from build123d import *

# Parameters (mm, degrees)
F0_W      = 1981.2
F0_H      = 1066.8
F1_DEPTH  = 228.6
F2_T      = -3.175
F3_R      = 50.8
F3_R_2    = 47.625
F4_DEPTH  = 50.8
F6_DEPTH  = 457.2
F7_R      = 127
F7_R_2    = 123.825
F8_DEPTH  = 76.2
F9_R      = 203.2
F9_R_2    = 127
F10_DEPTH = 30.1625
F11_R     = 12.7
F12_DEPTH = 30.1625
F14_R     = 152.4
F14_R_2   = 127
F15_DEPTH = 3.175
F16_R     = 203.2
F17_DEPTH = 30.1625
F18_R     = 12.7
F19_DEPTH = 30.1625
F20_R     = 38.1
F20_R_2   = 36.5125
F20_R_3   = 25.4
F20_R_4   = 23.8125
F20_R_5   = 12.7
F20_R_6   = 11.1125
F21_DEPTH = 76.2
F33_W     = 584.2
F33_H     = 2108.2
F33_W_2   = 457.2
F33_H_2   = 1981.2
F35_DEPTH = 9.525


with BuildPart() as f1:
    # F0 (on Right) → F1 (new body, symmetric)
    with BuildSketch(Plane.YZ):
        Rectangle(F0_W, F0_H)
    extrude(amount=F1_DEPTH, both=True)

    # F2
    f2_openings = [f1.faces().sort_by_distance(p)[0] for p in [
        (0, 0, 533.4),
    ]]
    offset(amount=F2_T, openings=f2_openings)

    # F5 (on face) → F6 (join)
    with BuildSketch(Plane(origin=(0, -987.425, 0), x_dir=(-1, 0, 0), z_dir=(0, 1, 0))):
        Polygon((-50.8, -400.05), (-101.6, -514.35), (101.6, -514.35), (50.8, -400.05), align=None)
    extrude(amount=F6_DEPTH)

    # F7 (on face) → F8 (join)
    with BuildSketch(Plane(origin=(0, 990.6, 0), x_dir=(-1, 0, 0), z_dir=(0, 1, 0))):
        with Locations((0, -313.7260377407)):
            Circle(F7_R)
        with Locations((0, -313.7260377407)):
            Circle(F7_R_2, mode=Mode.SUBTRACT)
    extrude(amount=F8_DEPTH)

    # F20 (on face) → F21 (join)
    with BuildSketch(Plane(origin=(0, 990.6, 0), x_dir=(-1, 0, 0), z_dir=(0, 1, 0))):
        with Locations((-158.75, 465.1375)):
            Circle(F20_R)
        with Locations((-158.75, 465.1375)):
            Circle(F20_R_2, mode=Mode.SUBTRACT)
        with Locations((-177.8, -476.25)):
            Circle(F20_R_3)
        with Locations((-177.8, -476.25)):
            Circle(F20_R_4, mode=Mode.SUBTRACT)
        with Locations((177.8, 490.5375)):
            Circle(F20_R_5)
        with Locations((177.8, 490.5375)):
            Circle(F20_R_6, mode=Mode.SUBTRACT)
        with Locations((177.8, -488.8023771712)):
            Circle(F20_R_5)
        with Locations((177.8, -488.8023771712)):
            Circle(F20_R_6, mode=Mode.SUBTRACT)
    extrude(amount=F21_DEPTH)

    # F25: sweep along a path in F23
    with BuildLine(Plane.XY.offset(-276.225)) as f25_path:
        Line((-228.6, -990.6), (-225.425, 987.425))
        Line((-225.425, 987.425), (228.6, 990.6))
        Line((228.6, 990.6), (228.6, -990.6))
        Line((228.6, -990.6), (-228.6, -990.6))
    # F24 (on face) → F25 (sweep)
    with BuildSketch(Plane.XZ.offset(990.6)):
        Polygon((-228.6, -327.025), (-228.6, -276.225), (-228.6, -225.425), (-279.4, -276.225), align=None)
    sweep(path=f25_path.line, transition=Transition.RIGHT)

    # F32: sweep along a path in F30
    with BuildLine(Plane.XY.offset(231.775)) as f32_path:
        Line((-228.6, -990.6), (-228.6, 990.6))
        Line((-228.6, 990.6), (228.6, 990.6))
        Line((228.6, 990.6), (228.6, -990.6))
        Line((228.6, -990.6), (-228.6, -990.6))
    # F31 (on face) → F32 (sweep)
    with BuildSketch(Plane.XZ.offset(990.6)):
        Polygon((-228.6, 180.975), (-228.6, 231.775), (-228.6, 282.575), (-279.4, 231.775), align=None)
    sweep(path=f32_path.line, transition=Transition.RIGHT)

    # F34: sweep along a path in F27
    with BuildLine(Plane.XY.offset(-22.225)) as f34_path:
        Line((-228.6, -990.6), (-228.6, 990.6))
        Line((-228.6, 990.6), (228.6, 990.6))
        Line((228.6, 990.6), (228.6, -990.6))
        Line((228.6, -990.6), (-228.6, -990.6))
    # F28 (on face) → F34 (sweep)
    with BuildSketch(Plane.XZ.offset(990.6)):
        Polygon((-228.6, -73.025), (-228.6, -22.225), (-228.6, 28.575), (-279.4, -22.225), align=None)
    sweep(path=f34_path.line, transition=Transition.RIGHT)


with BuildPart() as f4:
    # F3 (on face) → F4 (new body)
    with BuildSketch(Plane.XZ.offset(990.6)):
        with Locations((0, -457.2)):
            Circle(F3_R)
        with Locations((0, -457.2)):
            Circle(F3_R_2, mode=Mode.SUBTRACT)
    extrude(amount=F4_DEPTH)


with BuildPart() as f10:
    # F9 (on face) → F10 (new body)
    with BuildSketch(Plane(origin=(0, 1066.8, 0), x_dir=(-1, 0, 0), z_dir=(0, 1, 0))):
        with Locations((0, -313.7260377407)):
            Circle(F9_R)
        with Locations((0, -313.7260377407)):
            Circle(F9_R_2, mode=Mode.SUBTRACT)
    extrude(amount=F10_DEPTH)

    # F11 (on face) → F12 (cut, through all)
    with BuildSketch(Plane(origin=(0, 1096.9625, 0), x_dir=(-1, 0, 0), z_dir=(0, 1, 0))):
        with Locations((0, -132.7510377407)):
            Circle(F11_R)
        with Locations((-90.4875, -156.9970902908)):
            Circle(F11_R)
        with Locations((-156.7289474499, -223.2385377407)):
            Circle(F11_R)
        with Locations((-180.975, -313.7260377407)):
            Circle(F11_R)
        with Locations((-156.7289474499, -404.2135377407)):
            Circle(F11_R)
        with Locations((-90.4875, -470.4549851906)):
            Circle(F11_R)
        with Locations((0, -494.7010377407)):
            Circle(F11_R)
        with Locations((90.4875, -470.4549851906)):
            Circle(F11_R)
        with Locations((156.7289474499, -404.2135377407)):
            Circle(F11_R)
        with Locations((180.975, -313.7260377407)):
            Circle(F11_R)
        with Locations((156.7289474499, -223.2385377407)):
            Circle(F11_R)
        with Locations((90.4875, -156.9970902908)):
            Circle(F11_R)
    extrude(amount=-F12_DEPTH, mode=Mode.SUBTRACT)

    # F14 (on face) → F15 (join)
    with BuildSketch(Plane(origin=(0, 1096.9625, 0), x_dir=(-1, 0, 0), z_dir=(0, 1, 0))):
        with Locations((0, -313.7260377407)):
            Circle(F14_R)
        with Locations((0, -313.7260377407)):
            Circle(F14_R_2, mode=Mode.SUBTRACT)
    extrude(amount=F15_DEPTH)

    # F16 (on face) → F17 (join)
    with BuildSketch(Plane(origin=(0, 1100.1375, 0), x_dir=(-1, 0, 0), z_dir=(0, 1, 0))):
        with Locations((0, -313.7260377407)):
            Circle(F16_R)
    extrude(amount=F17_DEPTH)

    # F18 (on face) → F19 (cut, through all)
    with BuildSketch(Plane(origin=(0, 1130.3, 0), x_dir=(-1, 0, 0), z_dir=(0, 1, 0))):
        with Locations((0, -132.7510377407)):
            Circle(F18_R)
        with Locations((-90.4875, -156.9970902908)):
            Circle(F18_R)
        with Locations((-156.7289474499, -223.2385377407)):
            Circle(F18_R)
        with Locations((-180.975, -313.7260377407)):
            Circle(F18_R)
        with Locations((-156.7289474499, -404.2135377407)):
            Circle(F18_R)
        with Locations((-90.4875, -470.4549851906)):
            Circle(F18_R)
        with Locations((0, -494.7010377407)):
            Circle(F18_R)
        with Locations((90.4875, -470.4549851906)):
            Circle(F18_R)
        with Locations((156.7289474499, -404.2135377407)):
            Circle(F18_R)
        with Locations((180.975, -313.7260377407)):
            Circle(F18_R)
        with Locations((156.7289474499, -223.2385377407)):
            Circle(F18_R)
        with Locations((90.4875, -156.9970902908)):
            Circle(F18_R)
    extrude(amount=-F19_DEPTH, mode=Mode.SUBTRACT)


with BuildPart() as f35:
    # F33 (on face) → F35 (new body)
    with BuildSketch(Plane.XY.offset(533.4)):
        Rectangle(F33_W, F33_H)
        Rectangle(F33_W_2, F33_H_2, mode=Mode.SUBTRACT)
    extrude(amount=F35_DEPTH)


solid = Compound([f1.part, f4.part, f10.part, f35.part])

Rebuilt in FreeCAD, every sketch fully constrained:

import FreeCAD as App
import Part
import Sketcher

V = App.Vector
Q = App.Units.Quantity


def faces_at(feature, points):
    """Names of the faces that lie closest to the given points."""
    faces = feature.Shape.Faces
    near = lambda p: min(range(len(faces)), key=lambda i: faces[i].distToShape(Part.Vertex(*p))[0])
    return sorted({f"Face{near(p) + 1}" for p in points})


def add_polygon(sketch, points):
    """Adds a closed chain of lines whose ends are joined by coincident constraints."""
    first, n = sketch.GeometryCount, len(points)
    for a, b in zip(points, points[1:] + points[:1]):
        sketch.addGeometry(Part.LineSegment(App.Vector(*a, 0), App.Vector(*b, 0)), False)
    for i in range(n):
        sketch.addConstraint(Sketcher.Constraint("Coincident", first + i, 2, first + (i + 1) % n, 1))

doc = App.newDocument("Part")
body = doc.addObject("PartDesign::Body", "Body")

# Sketch on YZ plane
sketch1 = body.newObject("Sketcher::SketchObject", "Sketch")
sketch1.AttachmentSupport = (doc.getObject("YZ_Plane"), [""])
sketch1.MapMode = "FlatFace"
add_polygon(sketch1, [(-990.6, 533.4), (-990.6, -533.4), (990.6, -533.4), (990.6, 533.4)])  # lines 0-3
sketch1.addConstraint(Sketcher.Constraint("Vertical", 0))
sketch1.addConstraint(Sketcher.Constraint("Horizontal", 1))
sketch1.addConstraint(Sketcher.Constraint("Vertical", 2))
sketch1.addConstraint(Sketcher.Constraint("Horizontal", 3))
sketch1.addConstraint(Sketcher.Constraint("Symmetric", 0, 2, 2, 2, -1, 1))
sketch1.addConstraint(Sketcher.Constraint("DistanceX", 1, 1, 1, 2, Q("78 in")))
sketch1.addConstraint(Sketcher.Constraint("DistanceY", 0, 2, 0, 1, Q("42 in")))
pad1 = body.newObject("PartDesign::Pad", "Pad")
pad1.Profile = sketch1
pad1.Length = Q("18 in")
pad1.Midplane = True
doc.recompute()

thickness = body.newObject("PartDesign::Thickness", "Thickness")
thickness.Base = (pad1, faces_at(pad1, [(0, 0, 533.4)]))
thickness.Value = Q("0.125 in")
thickness.Reversed = True
thickness.Join = "Arc"

# Sketch on XZ plane
sketch2 = body.newObject("Sketcher::SketchObject", "Sketch001")
sketch2.AttachmentSupport = (doc.getObject("XZ_Plane"), [""])
sketch2.MapMode = "FlatFace"
sketch2.AttachmentOffset = App.Placement(V(0, 0, 38.875 * 25.4), App.Rotation())
add_polygon(sketch2, [(50.8, -400.05), (101.6, -514.35), (-101.6, -514.35), (-50.8, -400.05)])  # lines 0-3
sketch2.addConstraint(Sketcher.Constraint("Horizontal", 1))
sketch2.addConstraint(Sketcher.Constraint("Horizontal", 3))
sketch2.addConstraint(Sketcher.Constraint("Equal", 0, 2))
sketch2.addConstraint(Sketcher.Constraint("DistanceX", 1, 2, 1, 1, Q("8 in")))
sketch2.addConstraint(Sketcher.Constraint("DistanceX", 3, 1, 3, 2, Q("4 in")))
sketch2.addConstraint(Sketcher.Constraint("DistanceX", -1, 1, 0, 2, Q("4 in")))
sketch2.addConstraint(Sketcher.Constraint("DistanceY", 1, 2, 2, 2, Q("4.5 in")))
sketch2.addConstraint(Sketcher.Constraint("DistanceY", 0, 2, -1, 1, Q("20.25 in")))
pad2 = body.newObject("PartDesign::Pad", "Pad001")
pad2.Profile = sketch2
pad2.Length = Q("18 in")
pad2.Reversed = True

# Sketch on XZ plane
sketch3 = body.newObject("Sketcher::SketchObject", "Sketch002")
sketch3.AttachmentSupport = (doc.getObject("XZ_Plane"), [""])
sketch3.MapMode = "FlatFace"
sketch3.AttachmentOffset = App.Placement(V(0, 0, -39 * 25.4), App.Rotation())
sketch3.addGeometry(Part.Circle(V(0, -313.726038, 0), V(0, 0, 1), 127), False)
sketch3.addGeometry(Part.Circle(V(0, -313.726038, 0), V(0, 0, 1), 123.825), False)
sketch3.addConstraint(Sketcher.Constraint("Coincident", 1, 3, 0, 3))
sketch3.addConstraint(Sketcher.Constraint("PointOnObject", 0, 3, -2))
sketch3.addConstraint(Sketcher.Constraint("Diameter", 0, Q("10 in")))
sketch3.addConstraint(Sketcher.Constraint("Diameter", 1, Q("9.75 in")))
sketch3.addConstraint(Sketcher.Constraint("DistanceY", 0, 3, -1, 1, Q("313.726038 mm")))
pad3 = body.newObject("PartDesign::Pad", "Pad002")
pad3.Profile = sketch3
pad3.Length = Q("3 in")
pad3.Reversed = True

# Sketch on XZ plane
sketch4 = body.newObject("Sketcher::SketchObject", "Sketch003")
sketch4.AttachmentSupport = (doc.getObject("XZ_Plane"), [""])
sketch4.MapMode = "FlatFace"
sketch4.AttachmentOffset = App.Placement(V(0, 0, -39 * 25.4), App.Rotation())
sketch4.addGeometry(Part.Circle(V(158.75, 465.1375, 0), V(0, 0, 1), 38.1), False)
sketch4.addGeometry(Part.Circle(V(158.75, 465.1375, 0), V(0, 0, 1), 36.5125), False)
sketch4.addGeometry(Part.Circle(V(177.8, -476.25, 0), V(0, 0, 1), 25.4), False)
sketch4.addGeometry(Part.Circle(V(177.8, -476.25, 0), V(0, 0, 1), 23.8125), False)
sketch4.addGeometry(Part.Circle(V(-177.8, 490.5375, 0), V(0, 0, 1), 12.7), False)
sketch4.addGeometry(Part.Circle(V(-177.8, 490.5375, 0), V(0, 0, 1), 11.1125), False)
sketch4.addGeometry(Part.Circle(V(-177.8, -488.802377, 0), V(0, 0, 1), 12.7), False)
sketch4.addGeometry(Part.Circle(V(-177.8, -488.802377, 0), V(0, 0, 1), 11.1125), False)
sketch4.addConstraint(Sketcher.Constraint("Coincident", 1, 3, 0, 3))
sketch4.addConstraint(Sketcher.Constraint("Coincident", 3, 3, 2, 3))
sketch4.addConstraint(Sketcher.Constraint("Coincident", 5, 3, 4, 3))
sketch4.addConstraint(Sketcher.Constraint("Coincident", 7, 3, 6, 3))
sketch4.addConstraint(Sketcher.Constraint("Equal", 4, 6))
sketch4.addConstraint(Sketcher.Constraint("Equal", 5, 7))
sketch4.addConstraint(Sketcher.Constraint("Vertical", 5, 3, 6, 3))
sketch4.addConstraint(Sketcher.Constraint("Diameter", 0, Q("3 in")))
sketch4.addConstraint(Sketcher.Constraint("Diameter", 2, Q("2 in")))
sketch4.addConstraint(Sketcher.Constraint("Diameter", 4, Q("1 in")))
sketch4.addConstraint(Sketcher.Constraint("Diameter", 1, Q("2.875 in")))
sketch4.addConstraint(Sketcher.Constraint("Diameter", 3, Q("1.875 in")))
sketch4.addConstraint(Sketcher.Constraint("Diameter", 5, Q("0.875 in")))
sketch4.addConstraint(Sketcher.Constraint("DistanceX", -1, 1, 2, 3, Q("7 in")))
sketch4.addConstraint(Sketcher.Constraint("DistanceX", 4, 3, -1, 1, Q("7 in")))
sketch4.addConstraint(Sketcher.Constraint("DistanceY", 0, 3, 4, 3, Q("1 in")))
sketch4.addConstraint(Sketcher.Constraint("DistanceX", -1, 1, 0, 3, Q("6.25 in")))
sketch4.addConstraint(Sketcher.Constraint("DistanceY", 2, 3, -1, 1, Q("18.75 in")))
sketch4.addConstraint(Sketcher.Constraint("DistanceY", -1, 1, 0, 3, Q("18.3125 in")))
sketch4.addConstraint(Sketcher.Constraint("DistanceY", 6, 3, -1, 1, Q("488.802377 mm")))
pad4 = body.newObject("PartDesign::Pad", "Pad003")
pad4.Profile = sketch4
pad4.Length = Q("3 in")
pad4.Reversed = True

# Sketch on XZ plane
sketch5 = body.newObject("Sketcher::SketchObject", "Sketch004")
sketch5.AttachmentSupport = (doc.getObject("XZ_Plane"), [""])
sketch5.MapMode = "FlatFace"
sketch5.AttachmentOffset = App.Placement(V(0, 0, 39 * 25.4), App.Rotation())
add_polygon(sketch5, [(-228.6, -327.025), (-228.6, -225.425), (-279.4, -276.225)])  # lines 0-2
sketch5.addConstraint(Sketcher.Constraint("Vertical", 0))
sketch5.addConstraint(Sketcher.Constraint("Perpendicular", 1, 2))
sketch5.addConstraint(Sketcher.Constraint("Equal", 1, 2))
sketch5.addConstraint(Sketcher.Constraint("DistanceY", 0, 1, 0, 2, Q("4 in")))
sketch5.addConstraint(Sketcher.Constraint("DistanceX", 0, 2, -1, 1, Q("9 in")))
sketch5.addConstraint(Sketcher.Constraint("DistanceY", 0, 2, -1, 1, Q("8.875 in")))

# Sketch on XY plane
sketch6 = body.newObject("Sketcher::SketchObject", "Sketch005")
sketch6.AttachmentSupport = (doc.getObject("XY_Plane"), [""])
sketch6.MapMode = "FlatFace"
sketch6.AttachmentOffset = App.Placement(V(0, 0, -10.875 * 25.4), App.Rotation())
add_polygon(sketch6, [(-228.6, -990.6), (-225.425, 987.425), (228.6, 990.6), (228.6, -990.6)])  # lines 0-3
sketch6.addConstraint(Sketcher.Constraint("Vertical", 2))
sketch6.addConstraint(Sketcher.Constraint("Horizontal", 3))
sketch6.addConstraint(Sketcher.Constraint("Symmetric", 1, 2, 3, 2, -1, 1))
sketch6.addConstraint(Sketcher.Constraint("DistanceX", 3, 2, 3, 1, Q("18 in")))
sketch6.addConstraint(Sketcher.Constraint("DistanceY", 2, 2, 2, 1, Q("78 in")))
sketch6.addConstraint(Sketcher.Constraint("DistanceX", 0, 2, -1, 1, Q("8.875 in")))
sketch6.addConstraint(Sketcher.Constraint("DistanceY", -1, 1, 0, 2, Q("38.875 in")))
doc.recompute()

additivepipe = body.newObject("PartDesign::AdditivePipe", "AdditivePipe")
additivepipe.Profile = sketch5
additivepipe.Spine = (sketch6, ["Edge1", "Edge2", "Edge3", "Edge4"])
additivepipe.Transition = "Right corner"

# Sketch on XZ plane
sketch7 = body.newObject("Sketcher::SketchObject", "Sketch006")
sketch7.AttachmentSupport = (doc.getObject("XZ_Plane"), [""])
sketch7.MapMode = "FlatFace"
sketch7.AttachmentOffset = App.Placement(V(0, 0, 39 * 25.4), App.Rotation())
add_polygon(sketch7, [(-228.6, 180.975), (-228.6, 282.575), (-279.4, 231.775)])  # lines 0-2
sketch7.addConstraint(Sketcher.Constraint("Vertical", 0))
sketch7.addConstraint(Sketcher.Constraint("Perpendicular", 1, 2))
sketch7.addConstraint(Sketcher.Constraint("Equal", 1, 2))
sketch7.addConstraint(Sketcher.Constraint("DistanceY", 0, 1, 0, 2, Q("4 in")))
sketch7.addConstraint(Sketcher.Constraint("DistanceX", 0, 2, -1, 1, Q("9 in")))
sketch7.addConstraint(Sketcher.Constraint("DistanceY", -1, 1, 0, 2, Q("11.125 in")))

# Sketch on XY plane
sketch8 = body.newObject("Sketcher::SketchObject", "Sketch007")
sketch8.AttachmentSupport = (doc.getObject("XY_Plane"), [""])
sketch8.MapMode = "FlatFace"
sketch8.AttachmentOffset = App.Placement(V(0, 0, 9.125 * 25.4), App.Rotation())
add_polygon(sketch8, [(-228.6, -990.6), (-228.6, 990.6), (228.6, 990.6), (228.6, -990.6)])  # lines 0-3
sketch8.addConstraint(Sketcher.Constraint("Vertical", 0))
sketch8.addConstraint(Sketcher.Constraint("Horizontal", 1))
sketch8.addConstraint(Sketcher.Constraint("Vertical", 2))
sketch8.addConstraint(Sketcher.Constraint("Horizontal", 3))
sketch8.addConstraint(Sketcher.Constraint("Symmetric", 0, 2, 2, 2, -1, 1))
sketch8.addConstraint(Sketcher.Constraint("DistanceX", 1, 1, 1, 2, Q("18 in")))
sketch8.addConstraint(Sketcher.Constraint("DistanceY", 0, 1, 0, 2, Q("78 in")))
doc.recompute()

additivepipe2 = body.newObject("PartDesign::AdditivePipe", "AdditivePipe001")
additivepipe2.Profile = sketch7
additivepipe2.Spine = (sketch8, ["Edge1", "Edge2", "Edge3", "Edge4"])
additivepipe2.Transition = "Right corner"

# Sketch on XZ plane
sketch9 = body.newObject("Sketcher::SketchObject", "Sketch008")
sketch9.AttachmentSupport = (doc.getObject("XZ_Plane"), [""])
sketch9.MapMode = "FlatFace"
sketch9.AttachmentOffset = App.Placement(V(0, 0, 39 * 25.4), App.Rotation())
add_polygon(sketch9, [(-228.6, -73.025), (-228.6, 28.575), (-279.4, -22.225)])  # lines 0-2
sketch9.addConstraint(Sketcher.Constraint("Vertical", 0))
sketch9.addConstraint(Sketcher.Constraint("Perpendicular", 1, 2))
sketch9.addConstraint(Sketcher.Constraint("Equal", 1, 2))
sketch9.addConstraint(Sketcher.Constraint("DistanceY", 0, 1, 0, 2, Q("4 in")))
sketch9.addConstraint(Sketcher.Constraint("DistanceX", 0, 2, -1, 1, Q("9 in")))
sketch9.addConstraint(Sketcher.Constraint("DistanceY", -1, 1, 0, 2, Q("1.125 in")))

# Sketch on XY plane
sketch10 = body.newObject("Sketcher::SketchObject", "Sketch009")
sketch10.AttachmentSupport = (doc.getObject("XY_Plane"), [""])
sketch10.MapMode = "FlatFace"
sketch10.AttachmentOffset = App.Placement(V(0, 0, -0.875 * 25.4), App.Rotation())
add_polygon(sketch10, [(-228.6, -990.6), (-228.6, 990.6), (228.6, 990.6), (228.6, -990.6)])  # lines 0-3
sketch10.addConstraint(Sketcher.Constraint("Vertical", 0))
sketch10.addConstraint(Sketcher.Constraint("Horizontal", 1))
sketch10.addConstraint(Sketcher.Constraint("Vertical", 2))
sketch10.addConstraint(Sketcher.Constraint("Horizontal", 3))
sketch10.addConstraint(Sketcher.Constraint("Symmetric", 0, 2, 2, 2, -1, 1))
sketch10.addConstraint(Sketcher.Constraint("DistanceX", 1, 1, 1, 2, Q("18 in")))
sketch10.addConstraint(Sketcher.Constraint("DistanceY", 0, 1, 0, 2, Q("78 in")))
doc.recompute()

additivepipe3 = body.newObject("PartDesign::AdditivePipe", "AdditivePipe002")
additivepipe3.Profile = sketch9
additivepipe3.Spine = (sketch10, ["Edge1", "Edge2", "Edge3", "Edge4"])
additivepipe3.Transition = "Right corner"
body2 = doc.addObject("PartDesign::Body", "Body001")

# Sketch on XZ plane
sketch11 = body2.newObject("Sketcher::SketchObject", "Sketch010")
sketch11.AttachmentSupport = (doc.getObject("XZ_Plane001"), [""])
sketch11.MapMode = "FlatFace"
sketch11.AttachmentOffset = App.Placement(V(0, 0, 39 * 25.4), App.Rotation())
sketch11.addGeometry(Part.Circle(V(0, -457.2, 0), V(0, 0, 1), 50.8), False)
sketch11.addGeometry(Part.Circle(V(0, -457.2, 0), V(0, 0, 1), 47.625), False)
sketch11.addConstraint(Sketcher.Constraint("Coincident", 1, 3, 0, 3))
sketch11.addConstraint(Sketcher.Constraint("PointOnObject", 0, 3, -2))
sketch11.addConstraint(Sketcher.Constraint("Diameter", 0, Q("4 in")))
sketch11.addConstraint(Sketcher.Constraint("Diameter", 1, Q("3.75 in")))
sketch11.addConstraint(Sketcher.Constraint("DistanceY", 0, 3, -1, 1, Q("18 in")))
pad5 = body2.newObject("PartDesign::Pad", "Pad004")
pad5.Profile = sketch11
pad5.Length = Q("2 in")
body3 = doc.addObject("PartDesign::Body", "Body002")

# Sketch on XZ plane
sketch12 = body3.newObject("Sketcher::SketchObject", "Sketch011")
sketch12.AttachmentSupport = (doc.getObject("XZ_Plane002"), [""])
sketch12.MapMode = "FlatFace"
sketch12.AttachmentOffset = App.Placement(V(0, 0, -42 * 25.4), App.Rotation())
sketch12.addGeometry(Part.Circle(V(0, -313.726038, 0), V(0, 0, 1), 203.2), False)
sketch12.addGeometry(Part.Circle(V(0, -313.726038, 0), V(0, 0, 1), 127), False)
sketch12.addConstraint(Sketcher.Constraint("Coincident", 1, 3, 0, 3))
sketch12.addConstraint(Sketcher.Constraint("PointOnObject", 0, 3, -2))
sketch12.addConstraint(Sketcher.Constraint("Diameter", 0, Q("16 in")))
sketch12.addConstraint(Sketcher.Constraint("Diameter", 1, Q("10 in")))
sketch12.addConstraint(Sketcher.Constraint("DistanceY", 0, 3, -1, 1, Q("313.726038 mm")))
pad6 = body3.newObject("PartDesign::Pad", "Pad005")
pad6.Profile = sketch12
pad6.Length = Q("1.1875 in")
pad6.Reversed = True

# Sketch on XZ plane
sketch13 = body3.newObject("Sketcher::SketchObject", "Sketch012")
sketch13.AttachmentSupport = (doc.getObject("XZ_Plane002"), [""])
sketch13.MapMode = "FlatFace"
sketch13.AttachmentOffset = App.Placement(V(0, 0, -43.1875 * 25.4), App.Rotation())
sketch13.addGeometry(Part.Circle(V(0, -132.751038, 0), V(0, 0, 1), 12.7), False)
sketch13.addGeometry(Part.Circle(V(90.4875, -156.99709, 0), V(0, 0, 1), 12.7), False)
sketch13.addGeometry(Part.Circle(V(156.728947, -223.238538, 0), V(0, 0, 1), 12.7), False)
sketch13.addGeometry(Part.Circle(V(180.975, -313.726038, 0), V(0, 0, 1), 12.7), False)
sketch13.addGeometry(Part.Circle(V(156.728947, -404.213538, 0), V(0, 0, 1), 12.7), False)
sketch13.addGeometry(Part.Circle(V(90.4875, -470.454985, 0), V(0, 0, 1), 12.7), False)
sketch13.addGeometry(Part.Circle(V(0, -494.701038, 0), V(0, 0, 1), 12.7), False)
sketch13.addGeometry(Part.Circle(V(-90.4875, -470.454985, 0), V(0, 0, 1), 12.7), False)
sketch13.addGeometry(Part.Circle(V(-156.728947, -404.213538, 0), V(0, 0, 1), 12.7), False)
sketch13.addGeometry(Part.Circle(V(-180.975, -313.726038, 0), V(0, 0, 1), 12.7), False)
sketch13.addGeometry(Part.Circle(V(-156.728947, -223.238538, 0), V(0, 0, 1), 12.7), False)
sketch13.addGeometry(Part.Circle(V(-90.4875, -156.99709, 0), V(0, 0, 1), 12.7), False)
sketch13.addConstraint(Sketcher.Constraint("Equal", 0, 1))
sketch13.addConstraint(Sketcher.Constraint("Equal", 1, 2))
sketch13.addConstraint(Sketcher.Constraint("Equal", 2, 3))
sketch13.addConstraint(Sketcher.Constraint("Equal", 3, 4))
sketch13.addConstraint(Sketcher.Constraint("Equal", 4, 5))
sketch13.addConstraint(Sketcher.Constraint("Equal", 5, 6))
sketch13.addConstraint(Sketcher.Constraint("Equal", 6, 7))
sketch13.addConstraint(Sketcher.Constraint("Equal", 7, 8))
sketch13.addConstraint(Sketcher.Constraint("Equal", 8, 9))
sketch13.addConstraint(Sketcher.Constraint("Equal", 9, 10))
sketch13.addConstraint(Sketcher.Constraint("Equal", 10, 11))
sketch13.addConstraint(Sketcher.Constraint("Symmetric", 5, 3, 7, 3, -2))
sketch13.addConstraint(Sketcher.Constraint("Symmetric", 4, 3, 8, 3, -2))
sketch13.addConstraint(Sketcher.Constraint("Symmetric", 3, 3, 9, 3, -2))
sketch13.addConstraint(Sketcher.Constraint("Symmetric", 2, 3, 10, 3, -2))
sketch13.addConstraint(Sketcher.Constraint("Symmetric", 1, 3, 11, 3, -2))
sketch13.addConstraint(Sketcher.Constraint("PointOnObject", 0, 3, -2))
sketch13.addConstraint(Sketcher.Constraint("PointOnObject", 6, 3, -2))
sketch13.addConstraint(Sketcher.Constraint("Vertical", 2, 3, 4, 3))
sketch13.addConstraint(Sketcher.Constraint("Vertical", 1, 3, 5, 3))
sketch13.addConstraint(Sketcher.Constraint("Diameter", 0, Q("1 in")))
sketch13.addConstraint(Sketcher.Constraint("DistanceX", -1, 1, 1, 3, Q("3.5625 in")))
sketch13.addConstraint(Sketcher.Constraint("DistanceX", -1, 1, 3, 3, Q("7.125 in")))
sketch13.addConstraint(Sketcher.Constraint("DistanceY", 2, 3, 0, 3, Q("3.5625 in")))
sketch13.addConstraint(Sketcher.Constraint("DistanceY", 3, 3, 2, 3, Q("3.5625 in")))
sketch13.addConstraint(Sketcher.Constraint("DistanceY", 4, 3, 3, 3, Q("3.5625 in")))
sketch13.addConstraint(Sketcher.Constraint("DistanceY", 6, 3, 4, 3, Q("3.5625 in")))
sketch13.addConstraint(Sketcher.Constraint("DistanceY", 1, 3, -1, 1, Q("156.99709 mm")))
sketch13.addConstraint(Sketcher.Constraint("DistanceY", 0, 3, -1, 1, Q("132.751038 mm")))
sketch13.addConstraint(Sketcher.Constraint("DistanceX", -1, 1, 2, 3, Q("156.728947 mm")))
sketch13.addConstraint(Sketcher.Constraint("DistanceY", 5, 3, -1, 1, Q("470.454985 mm")))
pocket1 = body3.newObject("PartDesign::Pocket", "Pocket")
pocket1.Profile = sketch13
pocket1.Type = "ThroughAll"
pocket1.Reversed = True

# Sketch on XZ plane
sketch14 = body3.newObject("Sketcher::SketchObject", "Sketch013")
sketch14.AttachmentSupport = (doc.getObject("XZ_Plane002"), [""])
sketch14.MapMode = "FlatFace"
sketch14.AttachmentOffset = App.Placement(V(0, 0, -43.1875 * 25.4), App.Rotation())
sketch14.addGeometry(Part.Circle(V(0, -313.726038, 0), V(0, 0, 1), 152.4), False)
sketch14.addGeometry(Part.Circle(V(0, -313.726038, 0), V(0, 0, 1), 127), False)
sketch14.addConstraint(Sketcher.Constraint("Coincident", 1, 3, 0, 3))
sketch14.addConstraint(Sketcher.Constraint("PointOnObject", 0, 3, -2))
sketch14.addConstraint(Sketcher.Constraint("Diameter", 0, Q("12 in")))
sketch14.addConstraint(Sketcher.Constraint("Diameter", 1, Q("10 in")))
sketch14.addConstraint(Sketcher.Constraint("DistanceY", 0, 3, -1, 1, Q("313.726038 mm")))
pad7 = body3.newObject("PartDesign::Pad", "Pad006")
pad7.Profile = sketch14
pad7.Length = Q("0.125 in")
pad7.Reversed = True

# Sketch on XZ plane
sketch15 = body3.newObject("Sketcher::SketchObject", "Sketch014")
sketch15.AttachmentSupport = (doc.getObject("XZ_Plane002"), [""])
sketch15.MapMode = "FlatFace"
sketch15.AttachmentOffset = App.Placement(V(0, 0, -43.3125 * 25.4), App.Rotation())
sketch15.addGeometry(Part.Circle(V(0, -313.726038, 0), V(0, 0, 1), 203.2), False)
sketch15.addConstraint(Sketcher.Constraint("PointOnObject", 0, 3, -2))
sketch15.addConstraint(Sketcher.Constraint("Diameter", 0, Q("16 in")))
sketch15.addConstraint(Sketcher.Constraint("DistanceY", 0, 3, -1, 1, Q("313.726038 mm")))
pad8 = body3.newObject("PartDesign::Pad", "Pad007")
pad8.Profile = sketch15
pad8.Length = Q("1.1875 in")
pad8.Reversed = True

# Sketch on XZ plane
sketch16 = body3.newObject("Sketcher::SketchObject", "Sketch015")
sketch16.AttachmentSupport = (doc.getObject("XZ_Plane002"), [""])
sketch16.MapMode = "FlatFace"
sketch16.AttachmentOffset = App.Placement(V(0, 0, -44.5 * 25.4), App.Rotation())
sketch16.addGeometry(Part.Circle(V(0, -132.751038, 0), V(0, 0, 1), 12.7), False)
sketch16.addGeometry(Part.Circle(V(90.4875, -156.99709, 0), V(0, 0, 1), 12.7), False)
sketch16.addGeometry(Part.Circle(V(156.728947, -223.238538, 0), V(0, 0, 1), 12.7), False)
sketch16.addGeometry(Part.Circle(V(180.975, -313.726038, 0), V(0, 0, 1), 12.7), False)
sketch16.addGeometry(Part.Circle(V(156.728947, -404.213538, 0), V(0, 0, 1), 12.7), False)
sketch16.addGeometry(Part.Circle(V(90.4875, -470.454985, 0), V(0, 0, 1), 12.7), False)
sketch16.addGeometry(Part.Circle(V(0, -494.701038, 0), V(0, 0, 1), 12.7), False)
sketch16.addGeometry(Part.Circle(V(-90.4875, -470.454985, 0), V(0, 0, 1), 12.7), False)
sketch16.addGeometry(Part.Circle(V(-156.728947, -404.213538, 0), V(0, 0, 1), 12.7), False)
sketch16.addGeometry(Part.Circle(V(-180.975, -313.726038, 0), V(0, 0, 1), 12.7), False)
sketch16.addGeometry(Part.Circle(V(-156.728947, -223.238538, 0), V(0, 0, 1), 12.7), False)
sketch16.addGeometry(Part.Circle(V(-90.4875, -156.99709, 0), V(0, 0, 1), 12.7), False)
sketch16.addConstraint(Sketcher.Constraint("Equal", 0, 1))
sketch16.addConstraint(Sketcher.Constraint("Equal", 1, 2))
sketch16.addConstraint(Sketcher.Constraint("Equal", 2, 3))
sketch16.addConstraint(Sketcher.Constraint("Equal", 3, 4))
sketch16.addConstraint(Sketcher.Constraint("Equal", 4, 5))
sketch16.addConstraint(Sketcher.Constraint("Equal", 5, 6))
sketch16.addConstraint(Sketcher.Constraint("Equal", 6, 7))
sketch16.addConstraint(Sketcher.Constraint("Equal", 7, 8))
sketch16.addConstraint(Sketcher.Constraint("Equal", 8, 9))
sketch16.addConstraint(Sketcher.Constraint("Equal", 9, 10))
sketch16.addConstraint(Sketcher.Constraint("Equal", 10, 11))
sketch16.addConstraint(Sketcher.Constraint("Symmetric", 5, 3, 7, 3, -2))
sketch16.addConstraint(Sketcher.Constraint("Symmetric", 4, 3, 8, 3, -2))
sketch16.addConstraint(Sketcher.Constraint("Symmetric", 3, 3, 9, 3, -2))
sketch16.addConstraint(Sketcher.Constraint("Symmetric", 2, 3, 10, 3, -2))
sketch16.addConstraint(Sketcher.Constraint("Symmetric", 1, 3, 11, 3, -2))
sketch16.addConstraint(Sketcher.Constraint("PointOnObject", 0, 3, -2))
sketch16.addConstraint(Sketcher.Constraint("PointOnObject", 6, 3, -2))
sketch16.addConstraint(Sketcher.Constraint("Vertical", 2, 3, 4, 3))
sketch16.addConstraint(Sketcher.Constraint("Vertical", 1, 3, 5, 3))
sketch16.addConstraint(Sketcher.Constraint("Diameter", 0, Q("1 in")))
sketch16.addConstraint(Sketcher.Constraint("DistanceX", -1, 1, 1, 3, Q("3.5625 in")))
sketch16.addConstraint(Sketcher.Constraint("DistanceX", -1, 1, 3, 3, Q("7.125 in")))
sketch16.addConstraint(Sketcher.Constraint("DistanceY", 2, 3, 0, 3, Q("3.5625 in")))
sketch16.addConstraint(Sketcher.Constraint("DistanceY", 3, 3, 2, 3, Q("3.5625 in")))
sketch16.addConstraint(Sketcher.Constraint("DistanceY", 4, 3, 3, 3, Q("3.5625 in")))
sketch16.addConstraint(Sketcher.Constraint("DistanceY", 6, 3, 4, 3, Q("3.5625 in")))
sketch16.addConstraint(Sketcher.Constraint("DistanceY", 1, 3, -1, 1, Q("156.99709 mm")))
sketch16.addConstraint(Sketcher.Constraint("DistanceY", 0, 3, -1, 1, Q("132.751038 mm")))
sketch16.addConstraint(Sketcher.Constraint("DistanceX", -1, 1, 2, 3, Q("156.728947 mm")))
sketch16.addConstraint(Sketcher.Constraint("DistanceY", 5, 3, -1, 1, Q("470.454985 mm")))
pocket2 = body3.newObject("PartDesign::Pocket", "Pocket001")
pocket2.Profile = sketch16
pocket2.Type = "ThroughAll"
pocket2.Reversed = True
body4 = doc.addObject("PartDesign::Body", "Body003")

# Sketch on XY plane
sketch17 = body4.newObject("Sketcher::SketchObject", "Sketch016")
sketch17.AttachmentSupport = (doc.getObject("XY_Plane003"), [""])
sketch17.MapMode = "FlatFace"
sketch17.AttachmentOffset = App.Placement(V(0, 0, 21 * 25.4), App.Rotation())
add_polygon(sketch17, [(-292.1, 1054.1), (-292.1, -1054.1), (292.1, -1054.1), (292.1, 1054.1)])  # lines 0-3
add_polygon(sketch17, [(228.6, -990.6), (-228.6, -990.6), (-228.6, 990.6), (228.6, 990.6)])  # lines 4-7
sketch17.addConstraint(Sketcher.Constraint("Vertical", 0))
sketch17.addConstraint(Sketcher.Constraint("Horizontal", 1))
sketch17.addConstraint(Sketcher.Constraint("Vertical", 2))
sketch17.addConstraint(Sketcher.Constraint("Horizontal", 3))
sketch17.addConstraint(Sketcher.Constraint("Horizontal", 4))
sketch17.addConstraint(Sketcher.Constraint("Vertical", 5))
sketch17.addConstraint(Sketcher.Constraint("Horizontal", 6))
sketch17.addConstraint(Sketcher.Constraint("Vertical", 7))
sketch17.addConstraint(Sketcher.Constraint("Symmetric", 0, 2, 2, 2, -1, 1))
sketch17.addConstraint(Sketcher.Constraint("Symmetric", 4, 2, 6, 2, -1, 1))
sketch17.addConstraint(Sketcher.Constraint("DistanceX", 1, 1, 1, 2, Q("23 in")))
sketch17.addConstraint(Sketcher.Constraint("DistanceX", 4, 2, 4, 1, Q("18 in")))
sketch17.addConstraint(Sketcher.Constraint("DistanceY", 0, 2, 0, 1, Q("83 in")))
sketch17.addConstraint(Sketcher.Constraint("DistanceY", 5, 1, 5, 2, Q("78 in")))
pad9 = body4.newObject("PartDesign::Pad", "Pad008")
pad9.Profile = sketch17
pad9.Length = Q("0.375 in")

doc.recompute()
